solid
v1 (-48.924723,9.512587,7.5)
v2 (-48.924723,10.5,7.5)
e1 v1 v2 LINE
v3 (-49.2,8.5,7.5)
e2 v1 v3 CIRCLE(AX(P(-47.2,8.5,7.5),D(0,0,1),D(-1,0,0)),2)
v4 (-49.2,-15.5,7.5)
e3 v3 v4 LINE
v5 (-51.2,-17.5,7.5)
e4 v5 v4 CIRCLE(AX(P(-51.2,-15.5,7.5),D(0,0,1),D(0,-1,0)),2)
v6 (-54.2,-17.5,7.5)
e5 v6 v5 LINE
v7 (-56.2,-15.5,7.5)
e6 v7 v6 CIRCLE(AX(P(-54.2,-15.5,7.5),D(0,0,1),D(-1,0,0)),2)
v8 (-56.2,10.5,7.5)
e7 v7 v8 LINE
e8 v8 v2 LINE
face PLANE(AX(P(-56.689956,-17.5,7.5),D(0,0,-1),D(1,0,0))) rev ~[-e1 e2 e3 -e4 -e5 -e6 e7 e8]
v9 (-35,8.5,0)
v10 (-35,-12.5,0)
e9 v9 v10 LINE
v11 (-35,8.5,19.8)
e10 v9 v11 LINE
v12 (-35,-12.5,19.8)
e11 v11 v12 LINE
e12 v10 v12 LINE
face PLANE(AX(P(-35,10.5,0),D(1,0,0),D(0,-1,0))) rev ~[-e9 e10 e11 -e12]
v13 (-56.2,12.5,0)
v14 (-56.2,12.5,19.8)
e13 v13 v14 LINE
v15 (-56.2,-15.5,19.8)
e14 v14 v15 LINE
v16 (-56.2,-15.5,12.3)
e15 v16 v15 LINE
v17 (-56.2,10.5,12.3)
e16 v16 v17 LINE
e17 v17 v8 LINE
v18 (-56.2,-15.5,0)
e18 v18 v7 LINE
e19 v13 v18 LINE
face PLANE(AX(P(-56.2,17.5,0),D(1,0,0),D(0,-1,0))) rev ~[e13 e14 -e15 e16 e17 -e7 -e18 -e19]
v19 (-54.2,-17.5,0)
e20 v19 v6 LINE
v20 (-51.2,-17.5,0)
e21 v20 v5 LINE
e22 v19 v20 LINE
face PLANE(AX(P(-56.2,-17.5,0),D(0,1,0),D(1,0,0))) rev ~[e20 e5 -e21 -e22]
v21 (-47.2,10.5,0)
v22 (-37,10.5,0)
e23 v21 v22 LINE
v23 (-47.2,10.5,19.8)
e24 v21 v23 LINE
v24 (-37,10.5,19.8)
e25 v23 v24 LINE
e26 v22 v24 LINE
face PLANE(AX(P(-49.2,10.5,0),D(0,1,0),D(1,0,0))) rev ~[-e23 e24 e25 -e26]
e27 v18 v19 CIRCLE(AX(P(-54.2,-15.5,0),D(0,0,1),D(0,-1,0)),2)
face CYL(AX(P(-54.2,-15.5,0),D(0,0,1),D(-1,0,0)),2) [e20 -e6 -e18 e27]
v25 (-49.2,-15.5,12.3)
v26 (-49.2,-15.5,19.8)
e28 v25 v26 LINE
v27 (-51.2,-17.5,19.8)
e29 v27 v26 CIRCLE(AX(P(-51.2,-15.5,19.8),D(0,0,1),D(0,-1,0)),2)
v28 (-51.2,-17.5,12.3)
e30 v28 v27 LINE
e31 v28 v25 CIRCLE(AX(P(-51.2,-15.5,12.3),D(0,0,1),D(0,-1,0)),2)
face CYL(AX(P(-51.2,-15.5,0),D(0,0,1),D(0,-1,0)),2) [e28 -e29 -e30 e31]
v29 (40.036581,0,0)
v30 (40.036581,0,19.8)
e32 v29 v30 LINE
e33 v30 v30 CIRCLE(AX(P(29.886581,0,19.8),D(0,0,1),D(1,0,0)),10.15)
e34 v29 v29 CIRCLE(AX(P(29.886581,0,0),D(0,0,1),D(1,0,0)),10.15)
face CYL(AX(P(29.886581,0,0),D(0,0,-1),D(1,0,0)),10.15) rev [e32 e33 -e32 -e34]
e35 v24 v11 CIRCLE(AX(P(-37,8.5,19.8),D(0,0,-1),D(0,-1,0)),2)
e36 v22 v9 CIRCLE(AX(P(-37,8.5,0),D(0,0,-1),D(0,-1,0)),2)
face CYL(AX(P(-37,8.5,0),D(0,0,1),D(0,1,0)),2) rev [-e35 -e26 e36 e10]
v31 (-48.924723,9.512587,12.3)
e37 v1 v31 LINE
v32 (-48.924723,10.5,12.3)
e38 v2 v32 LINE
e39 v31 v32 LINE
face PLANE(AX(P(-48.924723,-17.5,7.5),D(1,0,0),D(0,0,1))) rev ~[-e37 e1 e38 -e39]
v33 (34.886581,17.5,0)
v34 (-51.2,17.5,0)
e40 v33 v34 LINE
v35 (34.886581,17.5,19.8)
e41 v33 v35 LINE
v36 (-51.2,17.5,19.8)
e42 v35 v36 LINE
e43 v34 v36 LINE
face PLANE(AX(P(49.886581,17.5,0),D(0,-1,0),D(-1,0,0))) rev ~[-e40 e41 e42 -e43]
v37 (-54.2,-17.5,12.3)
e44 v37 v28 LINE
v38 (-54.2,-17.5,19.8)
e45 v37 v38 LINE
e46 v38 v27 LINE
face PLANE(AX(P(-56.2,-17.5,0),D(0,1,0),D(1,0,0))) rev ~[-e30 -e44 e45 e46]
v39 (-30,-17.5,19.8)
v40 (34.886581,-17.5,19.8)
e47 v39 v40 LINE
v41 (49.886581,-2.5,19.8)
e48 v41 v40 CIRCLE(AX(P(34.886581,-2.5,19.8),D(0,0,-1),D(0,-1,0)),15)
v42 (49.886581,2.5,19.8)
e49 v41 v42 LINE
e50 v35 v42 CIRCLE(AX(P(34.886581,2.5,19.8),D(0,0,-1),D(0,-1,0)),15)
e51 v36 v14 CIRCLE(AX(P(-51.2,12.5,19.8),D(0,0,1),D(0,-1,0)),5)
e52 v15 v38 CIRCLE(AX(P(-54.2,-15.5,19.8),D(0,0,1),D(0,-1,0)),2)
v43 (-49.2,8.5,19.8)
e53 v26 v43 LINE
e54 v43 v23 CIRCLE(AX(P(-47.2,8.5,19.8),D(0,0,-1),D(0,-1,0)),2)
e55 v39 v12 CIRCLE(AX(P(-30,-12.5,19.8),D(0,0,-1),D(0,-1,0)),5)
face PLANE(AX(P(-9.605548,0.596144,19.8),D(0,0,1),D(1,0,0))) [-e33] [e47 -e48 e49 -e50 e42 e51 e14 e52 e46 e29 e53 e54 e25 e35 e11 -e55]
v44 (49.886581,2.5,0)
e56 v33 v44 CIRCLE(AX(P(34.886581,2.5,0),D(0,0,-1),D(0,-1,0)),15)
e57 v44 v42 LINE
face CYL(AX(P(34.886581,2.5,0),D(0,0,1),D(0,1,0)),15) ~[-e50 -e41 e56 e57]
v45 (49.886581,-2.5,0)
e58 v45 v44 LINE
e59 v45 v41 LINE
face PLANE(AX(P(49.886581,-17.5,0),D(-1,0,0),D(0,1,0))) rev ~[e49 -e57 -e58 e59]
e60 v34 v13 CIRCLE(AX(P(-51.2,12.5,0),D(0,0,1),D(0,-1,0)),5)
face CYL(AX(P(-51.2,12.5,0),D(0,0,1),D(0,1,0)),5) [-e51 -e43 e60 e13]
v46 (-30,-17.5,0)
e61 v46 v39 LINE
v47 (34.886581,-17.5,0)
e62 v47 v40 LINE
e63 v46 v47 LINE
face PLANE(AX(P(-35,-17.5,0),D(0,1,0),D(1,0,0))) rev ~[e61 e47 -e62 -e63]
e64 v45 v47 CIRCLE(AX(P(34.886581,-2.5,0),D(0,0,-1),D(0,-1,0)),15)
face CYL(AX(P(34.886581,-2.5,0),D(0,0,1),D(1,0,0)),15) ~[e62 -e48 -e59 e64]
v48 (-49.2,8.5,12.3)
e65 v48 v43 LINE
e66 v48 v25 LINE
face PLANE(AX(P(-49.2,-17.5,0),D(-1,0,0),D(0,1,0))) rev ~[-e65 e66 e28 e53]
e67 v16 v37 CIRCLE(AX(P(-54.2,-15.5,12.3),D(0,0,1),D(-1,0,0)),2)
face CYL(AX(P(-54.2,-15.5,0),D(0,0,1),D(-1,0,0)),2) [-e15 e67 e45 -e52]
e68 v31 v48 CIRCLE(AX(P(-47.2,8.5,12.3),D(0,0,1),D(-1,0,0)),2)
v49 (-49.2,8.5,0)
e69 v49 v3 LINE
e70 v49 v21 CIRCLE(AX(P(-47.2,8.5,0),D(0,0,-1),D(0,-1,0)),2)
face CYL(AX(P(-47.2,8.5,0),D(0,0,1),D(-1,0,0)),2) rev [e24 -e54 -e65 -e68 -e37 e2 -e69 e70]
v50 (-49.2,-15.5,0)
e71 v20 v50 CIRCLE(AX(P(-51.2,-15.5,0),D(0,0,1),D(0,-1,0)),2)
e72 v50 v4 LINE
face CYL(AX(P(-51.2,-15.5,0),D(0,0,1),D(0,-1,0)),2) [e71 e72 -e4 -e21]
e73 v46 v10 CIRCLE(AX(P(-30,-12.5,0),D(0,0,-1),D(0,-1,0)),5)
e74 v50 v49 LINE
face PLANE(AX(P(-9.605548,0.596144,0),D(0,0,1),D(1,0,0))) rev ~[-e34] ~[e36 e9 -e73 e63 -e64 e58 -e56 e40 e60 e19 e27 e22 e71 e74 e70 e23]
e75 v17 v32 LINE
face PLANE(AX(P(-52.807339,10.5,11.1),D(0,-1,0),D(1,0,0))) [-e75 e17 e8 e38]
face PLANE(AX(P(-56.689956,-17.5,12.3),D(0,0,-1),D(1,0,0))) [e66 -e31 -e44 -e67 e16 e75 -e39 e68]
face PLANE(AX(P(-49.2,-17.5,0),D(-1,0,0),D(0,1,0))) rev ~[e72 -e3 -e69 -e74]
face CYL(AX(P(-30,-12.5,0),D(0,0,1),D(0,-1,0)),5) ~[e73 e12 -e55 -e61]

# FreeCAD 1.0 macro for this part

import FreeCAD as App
import Part
import Sketcher


def edges_at(feature, points):
    """Names of the edges that pass closest to the given points."""
    edges = feature.Shape.Edges
    near = lambda p: min(range(len(edges)), key=lambda i: edges[i].distToShape(Part.Vertex(*p))[0])
    return sorted({f"Edge{near(p) + 1}" for p in points})


def add_polygon(sketch, points):
    """Adds a closed chain of lines whose ends are joined by coincident constraints."""
    first, n = sketch.GeometryCount, len(points)
    for a, b in zip(points, points[1:] + points[:1]):
        sketch.addGeometry(Part.LineSegment(App.Vector(*a, 0), App.Vector(*b, 0)), False)
    for i in range(n):
        sketch.addConstraint(Sketcher.Constraint("Coincident", first + i, 2, first + (i + 1) % n, 1))

doc = App.newDocument("Part")
body = doc.addObject("PartDesign::Body", "Body")

# Sketch on XY plane
sketch1 = doc.addObject("Sketcher::SketchObject", "Sketch")
body.addObject(sketch1)
sketch1.AttachmentSupport = (doc.XY_Plane, [""])
sketch1.MapMode = "FlatFace"
add_polygon(sketch1, [(-56.2, 17.5), (-56.2, -17.5), (-49.2, -17.5), (-49.2, 10.5), (-35, 10.5), (-35, -17.5), (49.886581, -17.5), (49.886581, 17.5)])  # lines 0-7
sketch1.addGeometry(Part.Circle(App.Vector(29.886581, 0, 0), App.Vector(0, 0, 1), 10.15), False)  # 8
sketch1.addConstraint(Sketcher.Constraint("Vertical", 0))
sketch1.addConstraint(Sketcher.Constraint("Horizontal", 1))
sketch1.addConstraint(Sketcher.Constraint("Vertical", 2))
sketch1.addConstraint(Sketcher.Constraint("Horizontal", 3))
sketch1.addConstraint(Sketcher.Constraint("Vertical", 4))
sketch1.addConstraint(Sketcher.Constraint("Horizontal", 5))
sketch1.addConstraint(Sketcher.Constraint("Vertical", 6))
sketch1.addConstraint(Sketcher.Constraint("Horizontal", 7))
sketch1.addConstraint(Sketcher.Constraint("PointOnObject", 8, 3, -1))
sketch1.addConstraint(Sketcher.Constraint("Horizontal", 1, 2, 4, 2))
sketch1.addConstraint(Sketcher.Constraint("Diameter", 8, 20.3))
sketch1.addConstraint(Sketcher.Constraint("DistanceX", 1, 1, 1, 2, 7.0))
sketch1.addConstraint(Sketcher.Constraint("DistanceY", 0, 2, 0, 1, 35.0))
sketch1.addConstraint(Sketcher.Constraint("DistanceY", 2, 1, 2, 2, 28.0))
sketch1.addConstraint(Sketcher.Constraint("DistanceX", 3, 1, 3, 2, 14.2))
sketch1.addConstraint(Sketcher.Constraint("DistanceX", 3, 2, -1, 1, 35.0))
sketch1.addConstraint(Sketcher.Constraint("DistanceX", 8, 3, 5, 2, 20.0))
sketch1.addConstraint(Sketcher.Constraint("DistanceY", 0, 2, -1, 1, 17.5))
sketch1.addConstraint(Sketcher.Constraint("DistanceX", 5, 1, 5, 2, 84.886581))
pad1 = doc.addObject("PartDesign::Pad", "Pad")
body.addObject(pad1)
pad1.Profile = sketch1
pad1.Length = 19.8
doc.recompute()

fillet = doc.addObject("PartDesign::Fillet", "Fillet")
body.addObject(fillet)
fillet.Base = (pad1, edges_at(pad1, [(49.887, 17.5, 9.9), (49.887, -17.5, 9.9)]))
fillet.Radius = 15
doc.recompute()

fillet2 = doc.addObject("PartDesign::Fillet", "Fillet001")
body.addObject(fillet2)
fillet2.Base = (fillet, edges_at(fillet, [(-35, -17.5, 9.9)]))
fillet2.Radius = 5
doc.recompute()

fillet3 = doc.addObject("PartDesign::Fillet", "Fillet002")
body.addObject(fillet3)
fillet3.Base = (fillet2, edges_at(fillet2, [(-56.2, 17.5, 9.9)]))
fillet3.Radius = 5
doc.recompute()

fillet4 = doc.addObject("PartDesign::Fillet", "Fillet003")
body.addObject(fillet4)
fillet4.Base = (fillet3, edges_at(fillet3, [(-49.2, -17.5, 9.9), (-56.2, -17.5, 9.9)]))
fillet4.Radius = 2
doc.recompute()

fillet5 = doc.addObject("PartDesign::Fillet", "Fillet004")
body.addObject(fillet5)
fillet5.Base = (fillet4, edges_at(fillet4, [(-49.2, 10.5, 9.9), (-35, 10.5, 9.9)]))
fillet5.Radius = 2

# Sketch on XZ plane
sketch2 = doc.addObject("Sketcher::SketchObject", "Sketch001")
body.addObject(sketch2)
sketch2.AttachmentSupport = (doc.XZ_Plane, [""])
sketch2.MapMode = "FlatFace"
sketch2.AttachmentOffset = App.Placement(App.Vector(0, 0, 17.5), App.Rotation())
add_polygon(sketch2, [(-56.689956, 12.3), (-56.689956, 7.5), (-48.924723, 7.5), (-48.924723, 12.3)])  # lines 0-3
sketch2.addConstraint(Sketcher.Constraint("Vertical", 0))
sketch2.addConstraint(Sketcher.Constraint("Horizontal", 1))
sketch2.addConstraint(Sketcher.Constraint("Vertical", 2))
sketch2.addConstraint(Sketcher.Constraint("Horizontal", 3))
sketch2.addConstraint(Sketcher.Constraint("DistanceY", 0, 2, 0, 1, 4.8))
sketch2.addConstraint(Sketcher.Constraint("DistanceY", -1, 1, 0, 2, 7.5))
sketch2.addConstraint(Sketcher.Constraint("DistanceX", 1, 1, 1, 2, 7.765233))
sketch2.addConstraint(Sketcher.Constraint("DistanceX", 0, 2, -1, 1, 56.689956))
pocket1 = doc.addObject("PartDesign::Pocket", "Pocket")
body.addObject(pocket1)
pocket1.Profile = sketch2
pocket1.Length = 28

doc.recompute()
